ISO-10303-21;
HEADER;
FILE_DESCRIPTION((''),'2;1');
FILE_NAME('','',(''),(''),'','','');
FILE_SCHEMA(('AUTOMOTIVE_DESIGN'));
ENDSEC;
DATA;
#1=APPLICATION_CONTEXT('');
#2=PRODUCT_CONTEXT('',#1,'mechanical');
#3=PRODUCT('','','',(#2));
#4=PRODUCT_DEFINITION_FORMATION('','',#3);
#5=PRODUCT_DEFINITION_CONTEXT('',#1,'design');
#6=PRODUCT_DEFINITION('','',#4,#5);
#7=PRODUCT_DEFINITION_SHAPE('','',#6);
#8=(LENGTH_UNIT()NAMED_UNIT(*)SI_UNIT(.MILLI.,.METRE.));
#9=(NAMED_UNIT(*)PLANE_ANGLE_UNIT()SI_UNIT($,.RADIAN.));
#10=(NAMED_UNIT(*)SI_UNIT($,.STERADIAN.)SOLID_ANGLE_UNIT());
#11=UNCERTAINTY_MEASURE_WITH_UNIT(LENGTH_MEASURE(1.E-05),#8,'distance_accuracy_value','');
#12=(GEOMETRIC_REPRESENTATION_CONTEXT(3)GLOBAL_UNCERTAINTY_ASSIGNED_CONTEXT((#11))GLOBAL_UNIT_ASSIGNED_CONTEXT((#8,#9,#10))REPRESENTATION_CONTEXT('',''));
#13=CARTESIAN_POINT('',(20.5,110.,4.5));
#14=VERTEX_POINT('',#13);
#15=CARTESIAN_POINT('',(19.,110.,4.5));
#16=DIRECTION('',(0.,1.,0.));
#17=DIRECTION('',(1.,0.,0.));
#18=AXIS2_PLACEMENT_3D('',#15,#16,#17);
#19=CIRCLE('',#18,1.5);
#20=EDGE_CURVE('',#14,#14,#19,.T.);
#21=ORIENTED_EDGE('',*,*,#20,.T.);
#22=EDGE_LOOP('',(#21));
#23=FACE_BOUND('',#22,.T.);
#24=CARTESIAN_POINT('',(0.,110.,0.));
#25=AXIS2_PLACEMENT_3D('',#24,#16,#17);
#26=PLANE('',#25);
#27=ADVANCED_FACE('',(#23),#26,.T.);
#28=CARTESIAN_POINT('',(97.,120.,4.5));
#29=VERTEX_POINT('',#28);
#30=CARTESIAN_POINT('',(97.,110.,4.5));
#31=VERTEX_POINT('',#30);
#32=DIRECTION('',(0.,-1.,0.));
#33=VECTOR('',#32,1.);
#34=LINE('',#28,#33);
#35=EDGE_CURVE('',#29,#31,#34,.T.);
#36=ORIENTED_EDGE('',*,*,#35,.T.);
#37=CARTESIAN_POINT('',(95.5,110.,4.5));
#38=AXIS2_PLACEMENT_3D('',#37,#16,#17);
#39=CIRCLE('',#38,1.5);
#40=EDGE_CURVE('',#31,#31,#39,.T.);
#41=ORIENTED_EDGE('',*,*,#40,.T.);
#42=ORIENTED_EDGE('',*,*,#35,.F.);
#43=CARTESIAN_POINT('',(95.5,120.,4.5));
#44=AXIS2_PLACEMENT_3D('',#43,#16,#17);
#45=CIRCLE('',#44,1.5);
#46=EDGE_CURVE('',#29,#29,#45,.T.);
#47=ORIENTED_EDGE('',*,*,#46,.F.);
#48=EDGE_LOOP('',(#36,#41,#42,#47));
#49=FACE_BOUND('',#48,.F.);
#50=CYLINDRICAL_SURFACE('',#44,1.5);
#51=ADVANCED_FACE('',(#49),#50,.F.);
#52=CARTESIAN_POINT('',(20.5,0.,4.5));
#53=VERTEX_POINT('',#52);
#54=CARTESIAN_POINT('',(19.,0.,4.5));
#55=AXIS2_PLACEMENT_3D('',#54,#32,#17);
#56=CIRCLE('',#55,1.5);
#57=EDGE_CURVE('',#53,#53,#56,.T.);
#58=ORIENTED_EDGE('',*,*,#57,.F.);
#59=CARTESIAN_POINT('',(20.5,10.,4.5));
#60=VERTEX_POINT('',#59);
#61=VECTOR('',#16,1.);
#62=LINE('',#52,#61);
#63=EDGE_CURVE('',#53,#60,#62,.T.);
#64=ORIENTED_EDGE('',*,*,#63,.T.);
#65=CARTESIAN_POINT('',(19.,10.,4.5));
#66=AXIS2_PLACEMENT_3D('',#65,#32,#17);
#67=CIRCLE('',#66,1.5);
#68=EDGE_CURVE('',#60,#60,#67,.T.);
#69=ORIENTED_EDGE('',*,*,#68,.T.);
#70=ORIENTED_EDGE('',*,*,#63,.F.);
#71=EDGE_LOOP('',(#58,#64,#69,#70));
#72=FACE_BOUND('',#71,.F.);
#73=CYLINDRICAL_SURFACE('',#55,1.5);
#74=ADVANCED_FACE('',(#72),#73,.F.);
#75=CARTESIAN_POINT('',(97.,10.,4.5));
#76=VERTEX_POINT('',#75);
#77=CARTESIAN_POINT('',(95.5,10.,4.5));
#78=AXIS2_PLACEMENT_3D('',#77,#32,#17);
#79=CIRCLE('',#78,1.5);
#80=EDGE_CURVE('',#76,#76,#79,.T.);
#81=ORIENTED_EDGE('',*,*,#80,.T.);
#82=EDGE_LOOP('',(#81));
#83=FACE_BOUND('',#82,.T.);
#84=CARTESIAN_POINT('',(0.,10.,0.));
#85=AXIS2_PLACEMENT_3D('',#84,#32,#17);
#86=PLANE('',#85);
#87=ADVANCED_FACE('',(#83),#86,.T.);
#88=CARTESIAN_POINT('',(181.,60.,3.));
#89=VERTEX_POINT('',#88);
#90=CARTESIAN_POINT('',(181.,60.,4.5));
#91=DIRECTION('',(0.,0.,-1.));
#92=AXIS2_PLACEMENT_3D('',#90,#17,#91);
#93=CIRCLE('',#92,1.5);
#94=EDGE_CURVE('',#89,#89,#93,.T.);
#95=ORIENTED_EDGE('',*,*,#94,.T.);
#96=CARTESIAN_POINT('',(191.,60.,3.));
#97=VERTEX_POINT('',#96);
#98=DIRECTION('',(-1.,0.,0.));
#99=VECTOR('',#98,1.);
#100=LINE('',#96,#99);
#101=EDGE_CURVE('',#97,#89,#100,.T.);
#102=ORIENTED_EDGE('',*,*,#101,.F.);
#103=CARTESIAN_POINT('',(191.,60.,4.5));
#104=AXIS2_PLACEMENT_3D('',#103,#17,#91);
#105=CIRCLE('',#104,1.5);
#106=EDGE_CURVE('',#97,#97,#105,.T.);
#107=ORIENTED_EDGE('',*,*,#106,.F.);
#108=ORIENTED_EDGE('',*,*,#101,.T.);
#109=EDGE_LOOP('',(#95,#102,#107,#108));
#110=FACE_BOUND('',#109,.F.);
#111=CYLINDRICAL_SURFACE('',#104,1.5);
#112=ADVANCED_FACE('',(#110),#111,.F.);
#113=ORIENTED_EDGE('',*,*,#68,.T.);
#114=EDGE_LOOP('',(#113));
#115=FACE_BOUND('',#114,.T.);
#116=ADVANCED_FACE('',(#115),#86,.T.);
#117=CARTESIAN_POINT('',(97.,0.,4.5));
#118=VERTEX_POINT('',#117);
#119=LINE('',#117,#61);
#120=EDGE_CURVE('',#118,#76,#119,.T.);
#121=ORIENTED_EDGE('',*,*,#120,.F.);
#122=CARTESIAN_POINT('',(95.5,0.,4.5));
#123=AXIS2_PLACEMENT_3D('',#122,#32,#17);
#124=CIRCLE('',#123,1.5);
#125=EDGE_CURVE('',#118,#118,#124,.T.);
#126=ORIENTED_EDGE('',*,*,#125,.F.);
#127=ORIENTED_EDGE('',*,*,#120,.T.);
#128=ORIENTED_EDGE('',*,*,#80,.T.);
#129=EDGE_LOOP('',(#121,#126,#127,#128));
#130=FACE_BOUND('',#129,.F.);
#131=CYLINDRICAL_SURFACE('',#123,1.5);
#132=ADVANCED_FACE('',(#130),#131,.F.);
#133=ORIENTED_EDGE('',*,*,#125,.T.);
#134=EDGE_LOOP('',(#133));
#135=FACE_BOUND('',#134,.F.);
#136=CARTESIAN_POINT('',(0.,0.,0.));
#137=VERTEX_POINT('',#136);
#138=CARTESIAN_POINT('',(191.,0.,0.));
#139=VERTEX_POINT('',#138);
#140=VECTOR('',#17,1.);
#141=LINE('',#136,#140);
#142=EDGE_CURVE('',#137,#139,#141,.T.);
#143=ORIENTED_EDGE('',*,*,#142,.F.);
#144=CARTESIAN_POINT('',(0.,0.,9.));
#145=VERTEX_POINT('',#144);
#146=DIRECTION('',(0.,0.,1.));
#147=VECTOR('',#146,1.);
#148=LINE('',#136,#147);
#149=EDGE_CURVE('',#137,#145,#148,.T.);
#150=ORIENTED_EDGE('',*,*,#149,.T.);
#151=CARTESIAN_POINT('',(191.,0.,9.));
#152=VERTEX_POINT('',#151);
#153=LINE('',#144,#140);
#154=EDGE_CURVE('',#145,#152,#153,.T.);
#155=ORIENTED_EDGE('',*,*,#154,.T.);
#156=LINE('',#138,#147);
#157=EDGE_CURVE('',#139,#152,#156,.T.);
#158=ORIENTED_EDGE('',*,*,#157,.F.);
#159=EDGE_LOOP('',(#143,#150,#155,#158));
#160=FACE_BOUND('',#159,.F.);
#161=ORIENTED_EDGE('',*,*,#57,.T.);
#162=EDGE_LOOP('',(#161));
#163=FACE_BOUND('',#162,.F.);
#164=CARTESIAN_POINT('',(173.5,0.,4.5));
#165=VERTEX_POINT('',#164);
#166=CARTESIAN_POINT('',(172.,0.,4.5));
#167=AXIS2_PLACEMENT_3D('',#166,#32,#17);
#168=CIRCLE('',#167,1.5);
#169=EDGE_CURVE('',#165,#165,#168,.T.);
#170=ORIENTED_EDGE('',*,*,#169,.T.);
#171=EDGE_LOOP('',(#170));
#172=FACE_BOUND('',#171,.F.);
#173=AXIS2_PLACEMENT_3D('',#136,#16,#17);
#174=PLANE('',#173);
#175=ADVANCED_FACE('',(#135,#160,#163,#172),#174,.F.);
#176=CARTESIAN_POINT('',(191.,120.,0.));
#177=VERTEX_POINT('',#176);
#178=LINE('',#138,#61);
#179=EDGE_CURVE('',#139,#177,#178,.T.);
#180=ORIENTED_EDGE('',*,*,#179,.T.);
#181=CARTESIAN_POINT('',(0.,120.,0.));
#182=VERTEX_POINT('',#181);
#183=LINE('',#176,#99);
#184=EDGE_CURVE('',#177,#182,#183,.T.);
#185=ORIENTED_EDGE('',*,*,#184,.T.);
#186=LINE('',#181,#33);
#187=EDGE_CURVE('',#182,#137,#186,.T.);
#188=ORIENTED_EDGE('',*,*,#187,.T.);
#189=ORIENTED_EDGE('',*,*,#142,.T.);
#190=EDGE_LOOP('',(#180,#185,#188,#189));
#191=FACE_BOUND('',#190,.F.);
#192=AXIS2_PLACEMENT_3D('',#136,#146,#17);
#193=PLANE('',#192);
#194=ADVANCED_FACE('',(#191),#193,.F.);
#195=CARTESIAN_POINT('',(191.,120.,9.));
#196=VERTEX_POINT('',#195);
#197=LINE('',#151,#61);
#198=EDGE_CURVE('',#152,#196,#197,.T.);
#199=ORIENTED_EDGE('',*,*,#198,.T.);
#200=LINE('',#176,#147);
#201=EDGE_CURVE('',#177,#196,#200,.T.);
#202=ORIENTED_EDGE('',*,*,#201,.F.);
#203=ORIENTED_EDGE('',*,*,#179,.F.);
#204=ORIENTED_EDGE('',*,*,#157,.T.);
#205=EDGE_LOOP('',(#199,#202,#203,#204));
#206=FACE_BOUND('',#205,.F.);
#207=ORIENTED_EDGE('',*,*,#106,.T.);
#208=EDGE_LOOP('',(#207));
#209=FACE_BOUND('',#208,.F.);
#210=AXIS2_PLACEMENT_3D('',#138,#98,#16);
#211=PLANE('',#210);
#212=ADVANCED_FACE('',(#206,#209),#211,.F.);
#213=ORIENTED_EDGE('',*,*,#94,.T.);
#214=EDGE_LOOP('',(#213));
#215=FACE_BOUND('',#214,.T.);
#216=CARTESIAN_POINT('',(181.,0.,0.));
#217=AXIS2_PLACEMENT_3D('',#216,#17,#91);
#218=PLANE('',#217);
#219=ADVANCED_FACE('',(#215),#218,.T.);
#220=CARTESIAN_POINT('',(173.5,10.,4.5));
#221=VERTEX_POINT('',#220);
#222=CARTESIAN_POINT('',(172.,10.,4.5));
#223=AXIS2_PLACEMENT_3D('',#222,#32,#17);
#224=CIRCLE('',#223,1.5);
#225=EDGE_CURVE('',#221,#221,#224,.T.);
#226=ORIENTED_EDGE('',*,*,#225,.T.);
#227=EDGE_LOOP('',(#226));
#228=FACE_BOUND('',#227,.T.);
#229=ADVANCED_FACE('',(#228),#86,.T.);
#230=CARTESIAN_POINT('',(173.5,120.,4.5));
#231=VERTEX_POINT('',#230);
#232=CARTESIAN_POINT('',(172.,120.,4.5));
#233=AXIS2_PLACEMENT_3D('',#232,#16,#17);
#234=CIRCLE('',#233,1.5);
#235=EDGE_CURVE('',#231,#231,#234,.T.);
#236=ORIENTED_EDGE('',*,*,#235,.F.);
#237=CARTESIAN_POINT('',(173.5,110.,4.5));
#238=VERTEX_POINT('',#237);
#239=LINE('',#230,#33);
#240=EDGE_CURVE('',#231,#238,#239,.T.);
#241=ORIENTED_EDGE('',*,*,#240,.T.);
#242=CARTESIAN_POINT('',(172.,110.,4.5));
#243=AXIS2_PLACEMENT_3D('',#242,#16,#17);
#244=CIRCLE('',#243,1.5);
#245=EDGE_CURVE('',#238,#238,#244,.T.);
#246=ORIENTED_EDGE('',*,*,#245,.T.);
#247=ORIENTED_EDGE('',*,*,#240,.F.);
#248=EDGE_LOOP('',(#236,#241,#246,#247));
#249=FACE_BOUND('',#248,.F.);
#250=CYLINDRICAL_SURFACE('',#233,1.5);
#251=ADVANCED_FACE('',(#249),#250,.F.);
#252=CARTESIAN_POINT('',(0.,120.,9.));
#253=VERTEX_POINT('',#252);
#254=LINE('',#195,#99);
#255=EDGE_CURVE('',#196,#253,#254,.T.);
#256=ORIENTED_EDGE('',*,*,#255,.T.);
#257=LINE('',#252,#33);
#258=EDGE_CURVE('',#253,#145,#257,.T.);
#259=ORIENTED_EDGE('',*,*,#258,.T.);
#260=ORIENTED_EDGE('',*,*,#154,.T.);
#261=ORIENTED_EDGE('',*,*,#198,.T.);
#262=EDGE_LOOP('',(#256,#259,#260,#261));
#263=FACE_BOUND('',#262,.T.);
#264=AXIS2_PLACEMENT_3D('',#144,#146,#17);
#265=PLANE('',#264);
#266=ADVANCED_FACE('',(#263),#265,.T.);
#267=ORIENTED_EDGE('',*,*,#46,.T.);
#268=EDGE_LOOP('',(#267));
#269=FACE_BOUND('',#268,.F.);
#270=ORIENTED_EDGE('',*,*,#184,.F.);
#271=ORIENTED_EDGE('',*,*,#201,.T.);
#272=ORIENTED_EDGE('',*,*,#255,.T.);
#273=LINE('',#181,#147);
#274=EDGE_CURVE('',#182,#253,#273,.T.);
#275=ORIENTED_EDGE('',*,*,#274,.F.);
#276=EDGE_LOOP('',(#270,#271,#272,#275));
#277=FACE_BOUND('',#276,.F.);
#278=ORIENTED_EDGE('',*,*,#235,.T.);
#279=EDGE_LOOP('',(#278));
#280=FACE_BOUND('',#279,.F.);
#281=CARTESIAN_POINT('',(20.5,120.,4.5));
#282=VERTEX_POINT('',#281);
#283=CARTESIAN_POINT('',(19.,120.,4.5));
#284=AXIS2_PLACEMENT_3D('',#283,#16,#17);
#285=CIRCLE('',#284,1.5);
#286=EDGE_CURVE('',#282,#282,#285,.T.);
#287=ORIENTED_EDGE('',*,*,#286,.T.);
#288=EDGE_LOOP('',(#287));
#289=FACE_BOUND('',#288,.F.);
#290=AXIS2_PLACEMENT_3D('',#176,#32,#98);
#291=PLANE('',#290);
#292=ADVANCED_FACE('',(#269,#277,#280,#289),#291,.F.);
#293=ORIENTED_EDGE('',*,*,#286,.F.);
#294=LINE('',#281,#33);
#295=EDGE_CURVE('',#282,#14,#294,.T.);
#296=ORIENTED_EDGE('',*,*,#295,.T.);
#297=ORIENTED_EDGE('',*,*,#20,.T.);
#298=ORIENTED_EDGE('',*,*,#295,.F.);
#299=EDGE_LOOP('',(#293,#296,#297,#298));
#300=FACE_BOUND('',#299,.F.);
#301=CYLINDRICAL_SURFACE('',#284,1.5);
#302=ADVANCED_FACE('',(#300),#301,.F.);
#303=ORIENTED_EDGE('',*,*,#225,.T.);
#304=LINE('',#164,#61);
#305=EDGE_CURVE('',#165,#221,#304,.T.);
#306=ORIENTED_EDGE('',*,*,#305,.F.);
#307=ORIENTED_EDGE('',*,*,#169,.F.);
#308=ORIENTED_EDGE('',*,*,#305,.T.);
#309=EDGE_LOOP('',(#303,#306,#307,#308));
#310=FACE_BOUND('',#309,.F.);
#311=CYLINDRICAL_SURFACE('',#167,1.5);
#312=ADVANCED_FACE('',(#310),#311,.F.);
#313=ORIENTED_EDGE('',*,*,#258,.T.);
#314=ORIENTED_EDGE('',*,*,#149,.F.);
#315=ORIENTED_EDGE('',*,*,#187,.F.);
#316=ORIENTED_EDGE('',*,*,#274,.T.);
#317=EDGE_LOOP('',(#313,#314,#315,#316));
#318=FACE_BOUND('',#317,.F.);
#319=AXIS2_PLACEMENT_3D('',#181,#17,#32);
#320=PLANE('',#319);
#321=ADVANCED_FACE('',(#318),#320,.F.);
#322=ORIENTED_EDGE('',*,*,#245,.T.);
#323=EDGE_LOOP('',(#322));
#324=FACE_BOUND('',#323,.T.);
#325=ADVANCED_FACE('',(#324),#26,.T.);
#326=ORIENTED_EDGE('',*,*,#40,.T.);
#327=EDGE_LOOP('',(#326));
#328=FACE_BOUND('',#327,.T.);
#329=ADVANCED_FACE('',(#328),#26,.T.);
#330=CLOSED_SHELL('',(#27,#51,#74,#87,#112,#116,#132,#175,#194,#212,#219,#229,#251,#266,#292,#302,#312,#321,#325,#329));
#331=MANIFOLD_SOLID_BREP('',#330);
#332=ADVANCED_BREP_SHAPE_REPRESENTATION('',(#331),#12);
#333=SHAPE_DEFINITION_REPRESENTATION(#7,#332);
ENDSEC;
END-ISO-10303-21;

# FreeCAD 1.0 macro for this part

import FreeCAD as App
import Part
import Sketcher

V = App.Vector

doc = App.newDocument("Part")
body = doc.addObject("PartDesign::Body", "Body")

# Sketch on XY plane
sketch1 = body.newObject("Sketcher::SketchObject", "Sketch")
sketch1.AttachmentSupport = (doc.getObject("XY_Plane"), [""])
sketch1.MapMode = "FlatFace"
sketch1.addGeometry(Part.LineSegment(V(0, 120, 0), V(0, 0, 0)), False)
sketch1.addGeometry(Part.LineSegment(V(0, 0, 0), V(191, 0, 0)), False)
sketch1.addGeometry(Part.LineSegment(V(191, 0, 0), V(191, 120, 0)), False)
sketch1.addGeometry(Part.LineSegment(V(191, 120, 0), V(0, 120, 0)), False)
sketch1.addConstraint(Sketcher.Constraint("Coincident", 0, 2, 1, 1))
sketch1.addConstraint(Sketcher.Constraint("Coincident", 1, 2, 2, 1))
sketch1.addConstraint(Sketcher.Constraint("Coincident", 2, 2, 3, 1))
sketch1.addConstraint(Sketcher.Constraint("Coincident", 3, 2, 0, 1))
sketch1.addConstraint(Sketcher.Constraint("Vertical", 0))
sketch1.addConstraint(Sketcher.Constraint("Horizontal", 1))
sketch1.addConstraint(Sketcher.Constraint("Vertical", 2))
sketch1.addConstraint(Sketcher.Constraint("Horizontal", 3))
sketch1.addConstraint(Sketcher.Constraint("Coincident", 0, 2, -1, 1))
sketch1.addConstraint(Sketcher.Constraint("DistanceX", 1, 1, 1, 2, 191.0))
sketch1.addConstraint(Sketcher.Constraint("DistanceY", 0, 2, 0, 1, 120.0))
pad1 = body.newObject("PartDesign::Pad", "Pad")
pad1.Profile = sketch1
pad1.Length = 9

# Sketch on XZ plane
sketch2 = body.newObject("Sketcher::SketchObject", "Sketch001")
sketch2.AttachmentSupport = (doc.getObject("XZ_Plane"), [""])
sketch2.MapMode = "FlatFace"
sketch2.AttachmentOffset = App.Placement(V(0, 0, -120), App.Rotation())
sketch2.addGeometry(Part.Circle(V(19, 4.5, 0), V(0, 0, 1), 1.5), False)
sketch2.addGeometry(Part.Circle(V(95.5, 4.5, 0), V(0, 0, 1), 1.5), False)
sketch2.addGeometry(Part.Circle(V(172, 4.5, 0), V(0, 0, 1), 1.5), False)
sketch2.addConstraint(Sketcher.Constraint("Equal", 0, 1))
sketch2.addConstraint(Sketcher.Constraint("Equal", 1, 2))
sketch2.addConstraint(Sketcher.Constraint("Horizontal", 0, 3, 1, 3))
sketch2.addConstraint(Sketcher.Constraint("Horizontal", 1, 3, 2, 3))
sketch2.addConstraint(Sketcher.Constraint("Diameter", 0, 3.0))
sketch2.addConstraint(Sketcher.Constraint("DistanceX", 0, 3, 1, 3, 76.5))
sketch2.addConstraint(Sketcher.Constraint("DistanceX", 1, 3, 2, 3, 76.5))
sketch2.addConstraint(Sketcher.Constraint("DistanceX", -1, 1, 0, 3, 19.0))
sketch2.addConstraint(Sketcher.Constraint("DistanceY", -1, 1, 0, 3, 4.5))
pocket1 = body.newObject("PartDesign::Pocket", "Pocket")
pocket1.Profile = sketch2
pocket1.Length = 10
pocket1.Reversed = True

# Sketch on XZ plane
sketch3 = body.newObject("Sketcher::SketchObject", "Sketch002")
sketch3.AttachmentSupport = (doc.getObject("XZ_Plane"), [""])
sketch3.MapMode = "FlatFace"
sketch3.addGeometry(Part.Circle(V(19, 4.5, 0), V(0, 0, 1), 1.5), False)
sketch3.addGeometry(Part.Circle(V(172, 4.5, 0), V(0, 0, 1), 1.5), False)
sketch3.addGeometry(Part.Circle(V(95.5, 4.5, 0), V(0, 0, 1), 1.5), False)
sketch3.addConstraint(Sketcher.Constraint("Equal", 0, 1))
sketch3.addConstraint(Sketcher.Constraint("Equal", 1, 2))
sketch3.addConstraint(Sketcher.Constraint("Horizontal", 0, 3, 1, 3))
sketch3.addConstraint(Sketcher.Constraint("Horizontal", 1, 3, 2, 3))
sketch3.addConstraint(Sketcher.Constraint("Diameter", 0, 3.0))
sketch3.addConstraint(Sketcher.Constraint("DistanceX", 0, 3, 2, 3, 76.5))
sketch3.addConstraint(Sketcher.Constraint("DistanceX", 2, 3, 1, 3, 76.5))
sketch3.addConstraint(Sketcher.Constraint("DistanceX", -1, 1, 0, 3, 19.0))
sketch3.addConstraint(Sketcher.Constraint("DistanceY", -1, 1, 0, 3, 4.5))
pocket2 = body.newObject("PartDesign::Pocket", "Pocket001")
pocket2.Profile = sketch3
pocket2.Length = 10

# Sketch on YZ plane
sketch4 = body.newObject("Sketcher::SketchObject", "Sketch003")
sketch4.AttachmentSupport = (doc.getObject("YZ_Plane"), [""])
sketch4.MapMode = "FlatFace"
sketch4.AttachmentOffset = App.Placement(V(0, 0, 191), App.Rotation())
sketch4.addGeometry(Part.Circle(V(60, 4.5, 0), V(0, 0, 1), 1.5), False)
sketch4.addConstraint(Sketcher.Constraint("Diameter", 0, 3.0))
sketch4.addConstraint(Sketcher.Constraint("DistanceX", -1, 1, 0, 3, 60.0))
sketch4.addConstraint(Sketcher.Constraint("DistanceY", -1, 1, 0, 3, 4.5))
pocket3 = body.newObject("PartDesign::Pocket", "Pocket002")
pocket3.Profile = sketch4
pocket3.Length = 10

doc.recompute()
